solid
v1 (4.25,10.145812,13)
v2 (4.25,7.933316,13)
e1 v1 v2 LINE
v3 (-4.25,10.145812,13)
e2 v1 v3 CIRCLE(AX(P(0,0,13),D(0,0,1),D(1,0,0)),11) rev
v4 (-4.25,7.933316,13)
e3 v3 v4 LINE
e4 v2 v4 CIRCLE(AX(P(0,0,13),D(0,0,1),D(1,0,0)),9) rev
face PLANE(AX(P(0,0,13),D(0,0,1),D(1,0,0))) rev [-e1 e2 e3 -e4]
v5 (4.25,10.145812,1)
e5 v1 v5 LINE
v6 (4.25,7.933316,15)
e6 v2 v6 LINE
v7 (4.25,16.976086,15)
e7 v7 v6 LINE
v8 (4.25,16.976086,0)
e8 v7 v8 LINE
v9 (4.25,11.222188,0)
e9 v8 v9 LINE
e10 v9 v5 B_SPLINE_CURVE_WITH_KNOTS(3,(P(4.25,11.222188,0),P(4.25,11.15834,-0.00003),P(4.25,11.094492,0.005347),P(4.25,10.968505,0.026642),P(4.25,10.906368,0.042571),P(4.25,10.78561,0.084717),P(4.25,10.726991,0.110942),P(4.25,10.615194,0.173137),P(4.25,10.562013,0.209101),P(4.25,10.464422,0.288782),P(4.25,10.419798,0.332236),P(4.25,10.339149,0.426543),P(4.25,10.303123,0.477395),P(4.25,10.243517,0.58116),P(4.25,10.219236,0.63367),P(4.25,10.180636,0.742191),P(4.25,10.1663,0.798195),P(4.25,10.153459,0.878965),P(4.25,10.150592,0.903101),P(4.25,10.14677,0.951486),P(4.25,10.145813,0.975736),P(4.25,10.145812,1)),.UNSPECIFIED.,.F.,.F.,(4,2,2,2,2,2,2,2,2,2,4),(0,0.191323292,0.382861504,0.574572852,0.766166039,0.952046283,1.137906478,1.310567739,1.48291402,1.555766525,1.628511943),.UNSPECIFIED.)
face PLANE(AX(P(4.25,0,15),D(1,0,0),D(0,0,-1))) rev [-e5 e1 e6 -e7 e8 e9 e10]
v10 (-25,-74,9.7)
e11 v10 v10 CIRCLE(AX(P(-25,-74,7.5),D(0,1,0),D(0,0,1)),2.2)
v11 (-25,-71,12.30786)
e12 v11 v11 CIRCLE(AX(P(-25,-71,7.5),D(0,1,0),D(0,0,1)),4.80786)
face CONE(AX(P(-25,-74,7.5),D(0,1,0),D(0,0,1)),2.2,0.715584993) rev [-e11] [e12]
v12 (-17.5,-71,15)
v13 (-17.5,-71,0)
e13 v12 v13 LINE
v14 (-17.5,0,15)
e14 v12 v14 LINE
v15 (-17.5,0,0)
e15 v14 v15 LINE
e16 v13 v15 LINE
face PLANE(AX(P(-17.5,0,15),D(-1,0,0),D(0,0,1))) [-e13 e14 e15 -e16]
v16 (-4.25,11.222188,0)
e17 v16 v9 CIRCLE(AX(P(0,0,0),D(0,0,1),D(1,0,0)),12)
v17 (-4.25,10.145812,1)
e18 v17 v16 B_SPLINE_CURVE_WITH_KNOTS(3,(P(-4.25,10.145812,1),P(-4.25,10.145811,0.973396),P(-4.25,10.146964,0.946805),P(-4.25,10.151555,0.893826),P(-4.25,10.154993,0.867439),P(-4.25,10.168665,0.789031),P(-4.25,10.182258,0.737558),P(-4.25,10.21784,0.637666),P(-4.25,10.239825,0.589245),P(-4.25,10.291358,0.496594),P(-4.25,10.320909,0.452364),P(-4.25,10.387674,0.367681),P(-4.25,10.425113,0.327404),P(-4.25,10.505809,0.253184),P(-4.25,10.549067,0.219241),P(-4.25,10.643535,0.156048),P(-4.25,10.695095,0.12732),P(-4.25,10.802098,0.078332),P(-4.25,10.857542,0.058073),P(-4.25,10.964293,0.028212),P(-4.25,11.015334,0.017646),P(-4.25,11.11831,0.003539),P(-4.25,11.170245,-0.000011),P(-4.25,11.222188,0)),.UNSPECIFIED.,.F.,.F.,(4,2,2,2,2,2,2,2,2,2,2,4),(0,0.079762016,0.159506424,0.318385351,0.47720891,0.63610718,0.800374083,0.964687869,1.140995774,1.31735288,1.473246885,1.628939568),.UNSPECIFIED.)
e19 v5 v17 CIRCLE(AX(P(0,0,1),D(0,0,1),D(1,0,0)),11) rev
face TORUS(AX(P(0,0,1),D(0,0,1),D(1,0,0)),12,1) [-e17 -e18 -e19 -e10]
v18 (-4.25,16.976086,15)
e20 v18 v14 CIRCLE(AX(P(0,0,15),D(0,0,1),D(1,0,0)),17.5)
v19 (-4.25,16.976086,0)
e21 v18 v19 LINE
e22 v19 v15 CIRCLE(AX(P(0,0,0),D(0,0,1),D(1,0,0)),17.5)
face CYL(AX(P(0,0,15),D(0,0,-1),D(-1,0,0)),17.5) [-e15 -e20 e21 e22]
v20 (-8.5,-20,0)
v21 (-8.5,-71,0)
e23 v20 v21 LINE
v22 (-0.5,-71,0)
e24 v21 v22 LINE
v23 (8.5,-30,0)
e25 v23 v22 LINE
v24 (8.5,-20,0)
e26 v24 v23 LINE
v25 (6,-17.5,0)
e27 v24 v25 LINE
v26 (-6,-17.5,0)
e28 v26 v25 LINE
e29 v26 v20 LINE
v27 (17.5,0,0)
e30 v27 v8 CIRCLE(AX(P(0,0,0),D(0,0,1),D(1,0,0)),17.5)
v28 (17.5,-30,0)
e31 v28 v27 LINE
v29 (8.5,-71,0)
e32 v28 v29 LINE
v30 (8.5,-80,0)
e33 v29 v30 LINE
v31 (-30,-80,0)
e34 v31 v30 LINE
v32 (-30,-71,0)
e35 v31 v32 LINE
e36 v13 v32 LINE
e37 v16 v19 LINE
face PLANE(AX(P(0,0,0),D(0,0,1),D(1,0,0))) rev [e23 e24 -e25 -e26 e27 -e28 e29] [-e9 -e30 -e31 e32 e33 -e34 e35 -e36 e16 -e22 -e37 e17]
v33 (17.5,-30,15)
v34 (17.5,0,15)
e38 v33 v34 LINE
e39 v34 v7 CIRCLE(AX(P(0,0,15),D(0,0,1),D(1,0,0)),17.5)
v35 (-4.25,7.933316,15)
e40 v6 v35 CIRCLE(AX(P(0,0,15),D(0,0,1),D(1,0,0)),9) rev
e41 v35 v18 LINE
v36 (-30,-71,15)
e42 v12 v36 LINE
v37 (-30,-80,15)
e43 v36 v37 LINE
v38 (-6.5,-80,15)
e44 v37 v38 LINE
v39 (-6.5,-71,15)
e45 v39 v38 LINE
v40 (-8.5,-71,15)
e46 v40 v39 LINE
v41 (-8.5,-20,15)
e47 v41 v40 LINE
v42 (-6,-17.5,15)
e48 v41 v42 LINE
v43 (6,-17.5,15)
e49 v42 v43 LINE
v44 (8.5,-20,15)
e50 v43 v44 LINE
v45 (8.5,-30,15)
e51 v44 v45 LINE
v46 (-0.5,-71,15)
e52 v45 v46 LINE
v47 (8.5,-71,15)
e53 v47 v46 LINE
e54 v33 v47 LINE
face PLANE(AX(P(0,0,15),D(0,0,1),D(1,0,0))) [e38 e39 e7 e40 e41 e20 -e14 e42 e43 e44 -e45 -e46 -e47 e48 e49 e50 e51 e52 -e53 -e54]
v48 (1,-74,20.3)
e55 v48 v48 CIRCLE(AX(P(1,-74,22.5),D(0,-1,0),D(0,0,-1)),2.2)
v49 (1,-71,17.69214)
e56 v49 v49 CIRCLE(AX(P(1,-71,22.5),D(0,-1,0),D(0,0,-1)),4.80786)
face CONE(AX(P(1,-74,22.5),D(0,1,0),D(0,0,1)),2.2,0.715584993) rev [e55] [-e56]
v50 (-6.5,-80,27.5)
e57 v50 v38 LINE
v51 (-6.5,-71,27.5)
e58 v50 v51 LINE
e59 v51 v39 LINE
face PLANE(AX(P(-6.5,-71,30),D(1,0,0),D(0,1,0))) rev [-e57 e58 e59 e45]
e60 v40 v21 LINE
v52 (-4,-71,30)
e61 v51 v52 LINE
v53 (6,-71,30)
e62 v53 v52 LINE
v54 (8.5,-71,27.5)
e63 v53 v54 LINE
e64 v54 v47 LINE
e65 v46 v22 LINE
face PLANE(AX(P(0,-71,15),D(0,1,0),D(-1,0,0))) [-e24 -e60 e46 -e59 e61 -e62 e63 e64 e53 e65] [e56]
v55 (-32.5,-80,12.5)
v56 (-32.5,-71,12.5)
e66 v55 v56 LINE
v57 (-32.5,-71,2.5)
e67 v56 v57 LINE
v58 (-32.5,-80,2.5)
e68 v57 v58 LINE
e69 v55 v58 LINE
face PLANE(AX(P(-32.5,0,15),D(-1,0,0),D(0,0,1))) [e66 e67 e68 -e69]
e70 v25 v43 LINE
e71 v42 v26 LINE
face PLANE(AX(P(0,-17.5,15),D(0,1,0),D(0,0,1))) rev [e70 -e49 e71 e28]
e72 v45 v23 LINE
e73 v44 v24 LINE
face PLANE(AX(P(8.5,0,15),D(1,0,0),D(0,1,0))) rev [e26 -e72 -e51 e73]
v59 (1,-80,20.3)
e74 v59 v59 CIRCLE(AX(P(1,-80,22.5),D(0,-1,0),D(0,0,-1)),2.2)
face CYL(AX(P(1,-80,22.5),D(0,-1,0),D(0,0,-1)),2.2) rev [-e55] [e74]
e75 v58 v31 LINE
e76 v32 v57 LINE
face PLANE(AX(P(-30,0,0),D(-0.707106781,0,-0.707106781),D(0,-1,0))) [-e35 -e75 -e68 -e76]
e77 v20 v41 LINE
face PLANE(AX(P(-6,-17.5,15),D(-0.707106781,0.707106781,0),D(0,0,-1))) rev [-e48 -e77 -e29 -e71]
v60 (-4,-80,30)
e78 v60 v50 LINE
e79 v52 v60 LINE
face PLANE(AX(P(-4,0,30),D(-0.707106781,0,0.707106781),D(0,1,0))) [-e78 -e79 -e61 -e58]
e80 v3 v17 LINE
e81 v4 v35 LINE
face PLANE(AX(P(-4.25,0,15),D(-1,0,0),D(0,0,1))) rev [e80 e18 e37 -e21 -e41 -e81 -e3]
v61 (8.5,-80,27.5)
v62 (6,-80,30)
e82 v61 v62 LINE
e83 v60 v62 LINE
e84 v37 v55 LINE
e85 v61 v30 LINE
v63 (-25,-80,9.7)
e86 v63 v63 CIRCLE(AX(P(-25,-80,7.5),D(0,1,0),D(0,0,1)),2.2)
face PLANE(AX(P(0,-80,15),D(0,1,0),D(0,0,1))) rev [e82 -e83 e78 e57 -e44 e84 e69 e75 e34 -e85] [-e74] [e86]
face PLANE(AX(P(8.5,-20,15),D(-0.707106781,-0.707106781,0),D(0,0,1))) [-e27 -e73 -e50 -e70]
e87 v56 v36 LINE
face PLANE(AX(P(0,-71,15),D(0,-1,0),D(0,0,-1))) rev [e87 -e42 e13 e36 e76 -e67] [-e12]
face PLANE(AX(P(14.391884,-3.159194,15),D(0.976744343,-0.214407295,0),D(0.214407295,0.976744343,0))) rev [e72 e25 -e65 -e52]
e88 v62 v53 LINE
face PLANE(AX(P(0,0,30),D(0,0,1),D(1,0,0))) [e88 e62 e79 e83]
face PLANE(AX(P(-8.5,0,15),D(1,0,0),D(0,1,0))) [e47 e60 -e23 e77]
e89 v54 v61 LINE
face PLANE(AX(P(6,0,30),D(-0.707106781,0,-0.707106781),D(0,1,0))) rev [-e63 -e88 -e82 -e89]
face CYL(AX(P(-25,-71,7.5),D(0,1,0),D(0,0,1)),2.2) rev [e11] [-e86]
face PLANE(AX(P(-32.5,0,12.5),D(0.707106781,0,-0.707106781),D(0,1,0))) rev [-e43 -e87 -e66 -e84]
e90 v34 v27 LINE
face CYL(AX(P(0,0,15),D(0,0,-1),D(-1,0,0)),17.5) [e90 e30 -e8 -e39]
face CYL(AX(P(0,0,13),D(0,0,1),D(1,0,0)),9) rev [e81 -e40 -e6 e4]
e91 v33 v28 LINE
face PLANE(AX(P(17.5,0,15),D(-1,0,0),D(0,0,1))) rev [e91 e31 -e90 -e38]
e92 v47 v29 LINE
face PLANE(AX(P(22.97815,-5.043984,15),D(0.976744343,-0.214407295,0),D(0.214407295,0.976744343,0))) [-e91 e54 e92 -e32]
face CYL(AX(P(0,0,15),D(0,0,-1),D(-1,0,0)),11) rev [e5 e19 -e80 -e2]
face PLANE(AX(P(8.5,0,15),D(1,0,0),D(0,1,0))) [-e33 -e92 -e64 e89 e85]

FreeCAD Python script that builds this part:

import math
import FreeCAD as App
import Part
import Sketcher
Q = App.Units.Quantity


def edges_at(feature, points):
    """Names of the edges that pass closest to the given points."""
    edges = feature.Shape.Edges
    near = lambda p: min(range(len(edges)), key=lambda i: edges[i].distToShape(Part.Vertex(*p))[0])
    return sorted({f"Edge{near(p) + 1}" for p in points})


def add_polygon(sketch, points):
    """Adds a closed chain of lines whose ends are joined by coincident constraints."""
    first, n = sketch.GeometryCount, len(points)
    for a, b in zip(points, points[1:] + points[:1]):
        sketch.addGeometry(Part.LineSegment(App.Vector(*a, 0), App.Vector(*b, 0)), False)
    for i in range(n):
        sketch.addConstraint(Sketcher.Constraint("Coincident", first + i, 2, first + (i + 1) % n, 1))

doc = App.newDocument("Part")
body = doc.addObject("PartDesign::Body", "Body")

# Sketch on XY plane
sketch1 = body.newObject("Sketcher::SketchObject", "Sketch")
sketch1.AttachmentSupport = (doc.getObject("XY_Plane"), [""])
sketch1.MapMode = "FlatFace"
sketch1.addGeometry(Part.ArcOfCircle(Part.Circle(App.Vector(0, 0, 0), App.Vector(0, 0, 1), 11), math.radians(0), math.radians(67)), False)  # 0
sketch1.addGeometry(Part.ArcOfCircle(Part.Circle(App.Vector(0, 0, 0), App.Vector(0, 0, 1), 11), math.radians(-90), math.radians(0)), False)  # 1
sketch1.addGeometry(Part.ArcOfCircle(Part.Circle(App.Vector(0, 0, 0), App.Vector(0, 0, 1), 11), math.radians(180), math.radians(270)), False)  # 2
sketch1.addGeometry(Part.ArcOfCircle(Part.Circle(App.Vector(0, 0, 0), App.Vector(0, 0, 1), 11), math.radians(113), math.radians(180)), False)  # 3
sketch1.addGeometry(Part.LineSegment(App.Vector(-4, 10, 0), App.Vector(-4, 17, 0)), False)  # 4
sketch1.addGeometry(Part.ArcOfCircle(Part.Circle(App.Vector(0, 0, 0), App.Vector(0, 0, 1), 17), math.radians(104), math.radians(180)), False)  # 5
sketch1.addGeometry(Part.LineSegment(App.Vector(-18, 0, 0), App.Vector(-18, -71, 0)), False)  # 6
sketch1.addGeometry(Part.LineSegment(App.Vector(-18, -71, 0), App.Vector(-32, -71, 0)), False)  # 7
sketch1.addGeometry(Part.LineSegment(App.Vector(-32, -71, 0), App.Vector(-32, -80, 0)), False)  # 8
sketch1.addGeometry(Part.LineSegment(App.Vector(-32, -80, 0), App.Vector(8, -80, 0)), False)  # 9
sketch1.addGeometry(Part.LineSegment(App.Vector(8, -80, 0), App.Vector(8, -71, 0)), False)  # 10
sketch1.addGeometry(Part.LineSegment(App.Vector(8, -71, 0), App.Vector(18, -30, 0)), False)  # 11
sketch1.addGeometry(Part.LineSegment(App.Vector(18, -30, 0), App.Vector(18, 0, 0)), False)  # 12
sketch1.addGeometry(Part.ArcOfCircle(Part.Circle(App.Vector(0, 0, 0), App.Vector(0, 0, 1), 17), math.radians(0), math.radians(76)), False)  # 13
sketch1.addGeometry(Part.LineSegment(App.Vector(4, 17, 0), App.Vector(4, 10, 0)), False)  # 14
add_polygon(sketch1, [(8, -30), (0, -71), (-8, -71), (-8, -18), (8, -18)])  # lines 15-19
sketch1.addConstraint([
    Sketcher.Constraint("Tangent", 0, 1, 1, 2),
    Sketcher.Constraint("Tangent", 1, 1, 2, 2),
    Sketcher.Constraint("Tangent", 2, 1, 3, 2),
    Sketcher.Constraint("Coincident", 3, 1, 4, 1),
    Sketcher.Constraint("Coincident", 4, 2, 5, 1),
    Sketcher.Constraint("Tangent", 5, 2, 6, 1),
    Sketcher.Constraint("Coincident", 6, 2, 7, 1),
    Sketcher.Constraint("Coincident", 7, 2, 8, 1),
    Sketcher.Constraint("Coincident", 8, 2, 9, 1),
    Sketcher.Constraint("Coincident", 9, 2, 10, 1),
    Sketcher.Constraint("Coincident", 10, 2, 11, 1),
    Sketcher.Constraint("Coincident", 11, 2, 12, 1),
    Sketcher.Constraint("Tangent", 12, 2, 13, 1),
    Sketcher.Constraint("Coincident", 13, 2, 14, 1),
    Sketcher.Constraint("Coincident", 14, 2, 0, 2),
    Sketcher.Constraint("Vertical", 4),
    Sketcher.Constraint("Vertical", 6),
    Sketcher.Constraint("Horizontal", 7),
    Sketcher.Constraint("Vertical", 8),
    Sketcher.Constraint("Horizontal", 9),
    Sketcher.Constraint("Vertical", 10),
    Sketcher.Constraint("Vertical", 12),
    Sketcher.Constraint("Vertical", 14),
    Sketcher.Constraint("Horizontal", 16),
    Sketcher.Constraint("Vertical", 17),
    Sketcher.Constraint("Horizontal", 18),
    Sketcher.Constraint("Vertical", 19),
    Sketcher.Constraint("Coincident", 0, 3, -1, 1),
    Sketcher.Constraint("Coincident", 2, 3, -1, 1),
    Sketcher.Constraint("Coincident", 5, 3, -1, 1),
    Sketcher.Constraint("Coincident", 13, 3, -1, 1),
    Sketcher.Constraint("Equal", 2, 3),
    Sketcher.Constraint("Equal", 5, 13),
    Sketcher.Constraint("Symmetric", 10, 2, 16, 2, -2),
    Sketcher.Constraint("PointOnObject", 0, 1, -1),
    Sketcher.Constraint("PointOnObject", 1, 1, -2),
    Sketcher.Constraint("PointOnObject", 2, 1, -1),
    Sketcher.Constraint("Parallel", 11, 15),
    Sketcher.Constraint("Horizontal", 7, 2, 10, 2),
    Sketcher.Constraint("Horizontal", 4, 2, 13, 2),
    Sketcher.Constraint("Horizontal", 11, 2, 19, 2),
    Sketcher.Constraint("Vertical", 10, 2, 18, 2),
    Sketcher.Constraint("Radius", 0, 11.0),
    Sketcher.Constraint("Radius", 5, 17.5),
    Sketcher.Constraint("DistanceX", 7, 2, 7, 1, 15.0),
    Sketcher.Constraint("DistanceX", 9, 1, 9, 2, 41.0),
    Sketcher.Constraint("DistanceY", 6, 2, 6, 1, 71.0),
    Sketcher.Constraint("DistanceY", 8, 2, 8, 1, 9.0),
    Sketcher.Constraint("DistanceY", 12, 1, 12, 2, 30.0),
    Sketcher.Constraint("DistanceY", 17, 1, 17, 2, 53.5),
    Sketcher.Constraint("DistanceX", 4, 2, 13, 2, 8.5),
])
pad1 = body.newObject("PartDesign::Pad", "Pad")
pad1.Profile = sketch1
pad1.Length = 15

# Sketch on XY plane
sketch2 = body.newObject("Sketcher::SketchObject", "Sketch001")
sketch2.AttachmentSupport = (doc.getObject("XY_Plane"), [""])
sketch2.MapMode = "FlatFace"
sketch2.AttachmentOffset = App.Placement(App.Vector(0, 0, 13), App.Rotation())
sketch2.addGeometry([
    Part.LineSegment(App.Vector(4.2, 7.9, 0), App.Vector(4.2, 10.1, 0)),  # 0
    Part.ArcOfCircle(Part.Circle(App.Vector(0, 0, 0), App.Vector(0, 0, 1), 11), math.radians(180), math.radians(427)),  # 1
    Part.ArcOfCircle(Part.Circle(App.Vector(0, 0, 0), App.Vector(0, 0, 1), 11), math.radians(113), math.radians(180)),  # 2
    Part.LineSegment(App.Vector(-4.2, 10.1, 0), App.Vector(-4.2, 7.9, 0)),  # 3
    Part.ArcOfCircle(Part.Circle(App.Vector(0, 0, 0), App.Vector(0, 0, 1), 9), math.radians(118), math.radians(180)),  # 4
    Part.ArcOfCircle(Part.Circle(App.Vector(0, 0, 0), App.Vector(0, 0, 1), 9), math.radians(180), math.radians(422)),  # 5
], False)
sketch2.addConstraint([
    Sketcher.Constraint("Coincident", 0, 2, 1, 2),
    Sketcher.Constraint("Tangent", 1, 1, 2, 2),
    Sketcher.Constraint("Coincident", 2, 1, 3, 1),
    Sketcher.Constraint("Coincident", 3, 2, 4, 1),
    Sketcher.Constraint("Tangent", 4, 2, 5, 1),
    Sketcher.Constraint("Coincident", 5, 2, 0, 1),
    Sketcher.Constraint("Vertical", 0),
    Sketcher.Constraint("Vertical", 3),
    Sketcher.Constraint("Coincident", 1, 3, -1, 1),
    Sketcher.Constraint("Coincident", 4, 3, -1, 1),
    Sketcher.Constraint("Equal", 1, 2),
    Sketcher.Constraint("Equal", 4, 5),
    Sketcher.Constraint("PointOnObject", 1, 1, -1),
    Sketcher.Constraint("PointOnObject", 4, 2, -1),
    Sketcher.Constraint("Horizontal", 0, 2, 2, 1),
    Sketcher.Constraint("Radius", 1, 11.0),
    Sketcher.Constraint("Radius", 4, 9.0),
    Sketcher.Constraint("DistanceX", 2, 1, 0, 2, 8.5),
])
pad2 = body.newObject("PartDesign::Pad", "Pad001")
pad2.Profile = sketch2
pad2.Length = 2

# Sketch on XY plane
sketch3 = body.newObject("Sketcher::SketchObject", "Sketch002")
sketch3.AttachmentSupport = (doc.getObject("XY_Plane"), [""])
sketch3.MapMode = "FlatFace"
sketch3.AttachmentOffset = App.Placement(App.Vector(0, 0, 15), App.Rotation())
add_polygon(sketch3, [(-6, -71), (-6, -80), (8, -80), (8, -71)])  # lines 0-3
sketch3.addConstraint([
    Sketcher.Constraint("Vertical", 0),
    Sketcher.Constraint("Horizontal", 1),
    Sketcher.Constraint("Vertical", 2),
    Sketcher.Constraint("Horizontal", 3),
    Sketcher.Constraint("DistanceX", 1, 1, 1, 2, 15.0),
    Sketcher.Constraint("DistanceY", 0, 2, 0, 1, 9.0),
    Sketcher.Constraint("DistanceY", 0, 2, -1, 1, 80.0),
    Sketcher.Constraint("DistanceX", 0, 2, -1, 1, 6.5),
])
pad3 = body.newObject("PartDesign::Pad", "Pad002")
pad3.Profile = sketch3
pad3.Length = 15

# Sketch on YZ plane
sketch4 = body.newObject("Sketcher::SketchObject", "Sketch003")
sketch4.AttachmentSupport = (doc.getObject("YZ_Plane"), [""])
sketch4.MapMode = "FlatFace"
sketch4.AttachmentOffset = App.Placement(App.Vector(0, 0, -25), App.Rotation())
add_polygon(sketch4, [(-71, 7.5), (-80, 7.5), (-80, 9.7), (-74, 9.7), (-71, 12.3)])  # lines 0-4
sketch4.addGeometry(Part.LineSegment(App.Vector(-71, 7.5, 0), App.Vector(-80, 7.5, 0)), True)  # axis
sketch4.addConstraint([
    Sketcher.Constraint("Horizontal", 0),
    Sketcher.Constraint("Vertical", 1),
    Sketcher.Constraint("Horizontal", 2),
    Sketcher.Constraint("Vertical", 4),
    Sketcher.Constraint("Horizontal", 5),
    Sketcher.Constraint("Coincident", 5, 1, 4, 2),
    Sketcher.Constraint("Vertical", 1, 2, 5, 2),
    Sketcher.Constraint("DistanceX", 0, 2, 0, 1, 9.0),
    Sketcher.Constraint("DistanceX", 2, 1, 2, 2, 6.0),
    Sketcher.Constraint("Angle", 3, Q("41 deg")),
    Sketcher.Constraint("DistanceY", 1, 1, 1, 2, 2.2),
    Sketcher.Constraint("DistanceX", 0, 2, -1, 1, 80.0),
    Sketcher.Constraint("DistanceY", -1, 1, 0, 2, 7.5),
])
groove = body.newObject("PartDesign::Groove", "Groove")
groove.Profile = sketch4
groove.ReferenceAxis = (sketch4, ["Axis0"])
groove.Angle = 360

# Sketch on XY plane
sketch5 = body.newObject("Sketcher::SketchObject", "Sketch004")
sketch5.AttachmentSupport = (doc.getObject("XY_Plane"), [""])
sketch5.MapMode = "FlatFace"
sketch5.AttachmentOffset = App.Placement(App.Vector(0, 0, 22.5), App.Rotation())
add_polygon(sketch5, [(5.8, -71), (1, -71), (1, -80), (3.2, -80), (3.2, -74)])  # lines 0-4
sketch5.addGeometry(Part.LineSegment(App.Vector(1, -80, 0), App.Vector(1, -71, 0)), True)  # axis
sketch5.addConstraint([
    Sketcher.Constraint("Horizontal", 0),
    Sketcher.Constraint("Vertical", 1),
    Sketcher.Constraint("Horizontal", 2),
    Sketcher.Constraint("Vertical", 3),
    Sketcher.Constraint("Vertical", 5),
    Sketcher.Constraint("Coincident", 5, 1, 1, 2),
    Sketcher.Constraint("Horizontal", 4, 2, 5, 2),
    Sketcher.Constraint("DistanceY", 1, 2, 1, 1, 9.0),
    Sketcher.Constraint("DistanceY", 3, 1, 3, 2, 6.0),
    Sketcher.Constraint("Angle", 4, Q("49 deg")),
    Sketcher.Constraint("DistanceX", 2, 1, 2, 2, 2.2),
    Sketcher.Constraint("DistanceX", -1, 1, 0, 2, 1.0),
    Sketcher.Constraint("DistanceY", 0, 2, -1, 1, 71.0),
])
groove2 = body.newObject("PartDesign::Groove", "Groove001")
groove2.Profile = sketch5
groove2.ReferenceAxis = (sketch5, ["Axis0"])
groove2.Angle = 360
doc.recompute()

fillet = body.newObject("PartDesign::Fillet", "Fillet")
fillet.Base = (groove2, edges_at(groove2, [(7.778, -7.778, 0)]))
fillet.Radius = 1
doc.recompute()

chamfer = body.newObject("PartDesign::Chamfer", "Chamfer")
chamfer.Base = (fillet, edges_at(fillet, [
    (-32.5, -75.5, 0),
    (-8.5, -17.5, 7.5),
    (8.5, -17.5, 7.5),
    (-32.5, -75.5, 15),
    (-6.5, -75.5, 30),
    (8.5, -75.5, 30),
]))
chamfer.Size = 2.5

doc.recompute()
